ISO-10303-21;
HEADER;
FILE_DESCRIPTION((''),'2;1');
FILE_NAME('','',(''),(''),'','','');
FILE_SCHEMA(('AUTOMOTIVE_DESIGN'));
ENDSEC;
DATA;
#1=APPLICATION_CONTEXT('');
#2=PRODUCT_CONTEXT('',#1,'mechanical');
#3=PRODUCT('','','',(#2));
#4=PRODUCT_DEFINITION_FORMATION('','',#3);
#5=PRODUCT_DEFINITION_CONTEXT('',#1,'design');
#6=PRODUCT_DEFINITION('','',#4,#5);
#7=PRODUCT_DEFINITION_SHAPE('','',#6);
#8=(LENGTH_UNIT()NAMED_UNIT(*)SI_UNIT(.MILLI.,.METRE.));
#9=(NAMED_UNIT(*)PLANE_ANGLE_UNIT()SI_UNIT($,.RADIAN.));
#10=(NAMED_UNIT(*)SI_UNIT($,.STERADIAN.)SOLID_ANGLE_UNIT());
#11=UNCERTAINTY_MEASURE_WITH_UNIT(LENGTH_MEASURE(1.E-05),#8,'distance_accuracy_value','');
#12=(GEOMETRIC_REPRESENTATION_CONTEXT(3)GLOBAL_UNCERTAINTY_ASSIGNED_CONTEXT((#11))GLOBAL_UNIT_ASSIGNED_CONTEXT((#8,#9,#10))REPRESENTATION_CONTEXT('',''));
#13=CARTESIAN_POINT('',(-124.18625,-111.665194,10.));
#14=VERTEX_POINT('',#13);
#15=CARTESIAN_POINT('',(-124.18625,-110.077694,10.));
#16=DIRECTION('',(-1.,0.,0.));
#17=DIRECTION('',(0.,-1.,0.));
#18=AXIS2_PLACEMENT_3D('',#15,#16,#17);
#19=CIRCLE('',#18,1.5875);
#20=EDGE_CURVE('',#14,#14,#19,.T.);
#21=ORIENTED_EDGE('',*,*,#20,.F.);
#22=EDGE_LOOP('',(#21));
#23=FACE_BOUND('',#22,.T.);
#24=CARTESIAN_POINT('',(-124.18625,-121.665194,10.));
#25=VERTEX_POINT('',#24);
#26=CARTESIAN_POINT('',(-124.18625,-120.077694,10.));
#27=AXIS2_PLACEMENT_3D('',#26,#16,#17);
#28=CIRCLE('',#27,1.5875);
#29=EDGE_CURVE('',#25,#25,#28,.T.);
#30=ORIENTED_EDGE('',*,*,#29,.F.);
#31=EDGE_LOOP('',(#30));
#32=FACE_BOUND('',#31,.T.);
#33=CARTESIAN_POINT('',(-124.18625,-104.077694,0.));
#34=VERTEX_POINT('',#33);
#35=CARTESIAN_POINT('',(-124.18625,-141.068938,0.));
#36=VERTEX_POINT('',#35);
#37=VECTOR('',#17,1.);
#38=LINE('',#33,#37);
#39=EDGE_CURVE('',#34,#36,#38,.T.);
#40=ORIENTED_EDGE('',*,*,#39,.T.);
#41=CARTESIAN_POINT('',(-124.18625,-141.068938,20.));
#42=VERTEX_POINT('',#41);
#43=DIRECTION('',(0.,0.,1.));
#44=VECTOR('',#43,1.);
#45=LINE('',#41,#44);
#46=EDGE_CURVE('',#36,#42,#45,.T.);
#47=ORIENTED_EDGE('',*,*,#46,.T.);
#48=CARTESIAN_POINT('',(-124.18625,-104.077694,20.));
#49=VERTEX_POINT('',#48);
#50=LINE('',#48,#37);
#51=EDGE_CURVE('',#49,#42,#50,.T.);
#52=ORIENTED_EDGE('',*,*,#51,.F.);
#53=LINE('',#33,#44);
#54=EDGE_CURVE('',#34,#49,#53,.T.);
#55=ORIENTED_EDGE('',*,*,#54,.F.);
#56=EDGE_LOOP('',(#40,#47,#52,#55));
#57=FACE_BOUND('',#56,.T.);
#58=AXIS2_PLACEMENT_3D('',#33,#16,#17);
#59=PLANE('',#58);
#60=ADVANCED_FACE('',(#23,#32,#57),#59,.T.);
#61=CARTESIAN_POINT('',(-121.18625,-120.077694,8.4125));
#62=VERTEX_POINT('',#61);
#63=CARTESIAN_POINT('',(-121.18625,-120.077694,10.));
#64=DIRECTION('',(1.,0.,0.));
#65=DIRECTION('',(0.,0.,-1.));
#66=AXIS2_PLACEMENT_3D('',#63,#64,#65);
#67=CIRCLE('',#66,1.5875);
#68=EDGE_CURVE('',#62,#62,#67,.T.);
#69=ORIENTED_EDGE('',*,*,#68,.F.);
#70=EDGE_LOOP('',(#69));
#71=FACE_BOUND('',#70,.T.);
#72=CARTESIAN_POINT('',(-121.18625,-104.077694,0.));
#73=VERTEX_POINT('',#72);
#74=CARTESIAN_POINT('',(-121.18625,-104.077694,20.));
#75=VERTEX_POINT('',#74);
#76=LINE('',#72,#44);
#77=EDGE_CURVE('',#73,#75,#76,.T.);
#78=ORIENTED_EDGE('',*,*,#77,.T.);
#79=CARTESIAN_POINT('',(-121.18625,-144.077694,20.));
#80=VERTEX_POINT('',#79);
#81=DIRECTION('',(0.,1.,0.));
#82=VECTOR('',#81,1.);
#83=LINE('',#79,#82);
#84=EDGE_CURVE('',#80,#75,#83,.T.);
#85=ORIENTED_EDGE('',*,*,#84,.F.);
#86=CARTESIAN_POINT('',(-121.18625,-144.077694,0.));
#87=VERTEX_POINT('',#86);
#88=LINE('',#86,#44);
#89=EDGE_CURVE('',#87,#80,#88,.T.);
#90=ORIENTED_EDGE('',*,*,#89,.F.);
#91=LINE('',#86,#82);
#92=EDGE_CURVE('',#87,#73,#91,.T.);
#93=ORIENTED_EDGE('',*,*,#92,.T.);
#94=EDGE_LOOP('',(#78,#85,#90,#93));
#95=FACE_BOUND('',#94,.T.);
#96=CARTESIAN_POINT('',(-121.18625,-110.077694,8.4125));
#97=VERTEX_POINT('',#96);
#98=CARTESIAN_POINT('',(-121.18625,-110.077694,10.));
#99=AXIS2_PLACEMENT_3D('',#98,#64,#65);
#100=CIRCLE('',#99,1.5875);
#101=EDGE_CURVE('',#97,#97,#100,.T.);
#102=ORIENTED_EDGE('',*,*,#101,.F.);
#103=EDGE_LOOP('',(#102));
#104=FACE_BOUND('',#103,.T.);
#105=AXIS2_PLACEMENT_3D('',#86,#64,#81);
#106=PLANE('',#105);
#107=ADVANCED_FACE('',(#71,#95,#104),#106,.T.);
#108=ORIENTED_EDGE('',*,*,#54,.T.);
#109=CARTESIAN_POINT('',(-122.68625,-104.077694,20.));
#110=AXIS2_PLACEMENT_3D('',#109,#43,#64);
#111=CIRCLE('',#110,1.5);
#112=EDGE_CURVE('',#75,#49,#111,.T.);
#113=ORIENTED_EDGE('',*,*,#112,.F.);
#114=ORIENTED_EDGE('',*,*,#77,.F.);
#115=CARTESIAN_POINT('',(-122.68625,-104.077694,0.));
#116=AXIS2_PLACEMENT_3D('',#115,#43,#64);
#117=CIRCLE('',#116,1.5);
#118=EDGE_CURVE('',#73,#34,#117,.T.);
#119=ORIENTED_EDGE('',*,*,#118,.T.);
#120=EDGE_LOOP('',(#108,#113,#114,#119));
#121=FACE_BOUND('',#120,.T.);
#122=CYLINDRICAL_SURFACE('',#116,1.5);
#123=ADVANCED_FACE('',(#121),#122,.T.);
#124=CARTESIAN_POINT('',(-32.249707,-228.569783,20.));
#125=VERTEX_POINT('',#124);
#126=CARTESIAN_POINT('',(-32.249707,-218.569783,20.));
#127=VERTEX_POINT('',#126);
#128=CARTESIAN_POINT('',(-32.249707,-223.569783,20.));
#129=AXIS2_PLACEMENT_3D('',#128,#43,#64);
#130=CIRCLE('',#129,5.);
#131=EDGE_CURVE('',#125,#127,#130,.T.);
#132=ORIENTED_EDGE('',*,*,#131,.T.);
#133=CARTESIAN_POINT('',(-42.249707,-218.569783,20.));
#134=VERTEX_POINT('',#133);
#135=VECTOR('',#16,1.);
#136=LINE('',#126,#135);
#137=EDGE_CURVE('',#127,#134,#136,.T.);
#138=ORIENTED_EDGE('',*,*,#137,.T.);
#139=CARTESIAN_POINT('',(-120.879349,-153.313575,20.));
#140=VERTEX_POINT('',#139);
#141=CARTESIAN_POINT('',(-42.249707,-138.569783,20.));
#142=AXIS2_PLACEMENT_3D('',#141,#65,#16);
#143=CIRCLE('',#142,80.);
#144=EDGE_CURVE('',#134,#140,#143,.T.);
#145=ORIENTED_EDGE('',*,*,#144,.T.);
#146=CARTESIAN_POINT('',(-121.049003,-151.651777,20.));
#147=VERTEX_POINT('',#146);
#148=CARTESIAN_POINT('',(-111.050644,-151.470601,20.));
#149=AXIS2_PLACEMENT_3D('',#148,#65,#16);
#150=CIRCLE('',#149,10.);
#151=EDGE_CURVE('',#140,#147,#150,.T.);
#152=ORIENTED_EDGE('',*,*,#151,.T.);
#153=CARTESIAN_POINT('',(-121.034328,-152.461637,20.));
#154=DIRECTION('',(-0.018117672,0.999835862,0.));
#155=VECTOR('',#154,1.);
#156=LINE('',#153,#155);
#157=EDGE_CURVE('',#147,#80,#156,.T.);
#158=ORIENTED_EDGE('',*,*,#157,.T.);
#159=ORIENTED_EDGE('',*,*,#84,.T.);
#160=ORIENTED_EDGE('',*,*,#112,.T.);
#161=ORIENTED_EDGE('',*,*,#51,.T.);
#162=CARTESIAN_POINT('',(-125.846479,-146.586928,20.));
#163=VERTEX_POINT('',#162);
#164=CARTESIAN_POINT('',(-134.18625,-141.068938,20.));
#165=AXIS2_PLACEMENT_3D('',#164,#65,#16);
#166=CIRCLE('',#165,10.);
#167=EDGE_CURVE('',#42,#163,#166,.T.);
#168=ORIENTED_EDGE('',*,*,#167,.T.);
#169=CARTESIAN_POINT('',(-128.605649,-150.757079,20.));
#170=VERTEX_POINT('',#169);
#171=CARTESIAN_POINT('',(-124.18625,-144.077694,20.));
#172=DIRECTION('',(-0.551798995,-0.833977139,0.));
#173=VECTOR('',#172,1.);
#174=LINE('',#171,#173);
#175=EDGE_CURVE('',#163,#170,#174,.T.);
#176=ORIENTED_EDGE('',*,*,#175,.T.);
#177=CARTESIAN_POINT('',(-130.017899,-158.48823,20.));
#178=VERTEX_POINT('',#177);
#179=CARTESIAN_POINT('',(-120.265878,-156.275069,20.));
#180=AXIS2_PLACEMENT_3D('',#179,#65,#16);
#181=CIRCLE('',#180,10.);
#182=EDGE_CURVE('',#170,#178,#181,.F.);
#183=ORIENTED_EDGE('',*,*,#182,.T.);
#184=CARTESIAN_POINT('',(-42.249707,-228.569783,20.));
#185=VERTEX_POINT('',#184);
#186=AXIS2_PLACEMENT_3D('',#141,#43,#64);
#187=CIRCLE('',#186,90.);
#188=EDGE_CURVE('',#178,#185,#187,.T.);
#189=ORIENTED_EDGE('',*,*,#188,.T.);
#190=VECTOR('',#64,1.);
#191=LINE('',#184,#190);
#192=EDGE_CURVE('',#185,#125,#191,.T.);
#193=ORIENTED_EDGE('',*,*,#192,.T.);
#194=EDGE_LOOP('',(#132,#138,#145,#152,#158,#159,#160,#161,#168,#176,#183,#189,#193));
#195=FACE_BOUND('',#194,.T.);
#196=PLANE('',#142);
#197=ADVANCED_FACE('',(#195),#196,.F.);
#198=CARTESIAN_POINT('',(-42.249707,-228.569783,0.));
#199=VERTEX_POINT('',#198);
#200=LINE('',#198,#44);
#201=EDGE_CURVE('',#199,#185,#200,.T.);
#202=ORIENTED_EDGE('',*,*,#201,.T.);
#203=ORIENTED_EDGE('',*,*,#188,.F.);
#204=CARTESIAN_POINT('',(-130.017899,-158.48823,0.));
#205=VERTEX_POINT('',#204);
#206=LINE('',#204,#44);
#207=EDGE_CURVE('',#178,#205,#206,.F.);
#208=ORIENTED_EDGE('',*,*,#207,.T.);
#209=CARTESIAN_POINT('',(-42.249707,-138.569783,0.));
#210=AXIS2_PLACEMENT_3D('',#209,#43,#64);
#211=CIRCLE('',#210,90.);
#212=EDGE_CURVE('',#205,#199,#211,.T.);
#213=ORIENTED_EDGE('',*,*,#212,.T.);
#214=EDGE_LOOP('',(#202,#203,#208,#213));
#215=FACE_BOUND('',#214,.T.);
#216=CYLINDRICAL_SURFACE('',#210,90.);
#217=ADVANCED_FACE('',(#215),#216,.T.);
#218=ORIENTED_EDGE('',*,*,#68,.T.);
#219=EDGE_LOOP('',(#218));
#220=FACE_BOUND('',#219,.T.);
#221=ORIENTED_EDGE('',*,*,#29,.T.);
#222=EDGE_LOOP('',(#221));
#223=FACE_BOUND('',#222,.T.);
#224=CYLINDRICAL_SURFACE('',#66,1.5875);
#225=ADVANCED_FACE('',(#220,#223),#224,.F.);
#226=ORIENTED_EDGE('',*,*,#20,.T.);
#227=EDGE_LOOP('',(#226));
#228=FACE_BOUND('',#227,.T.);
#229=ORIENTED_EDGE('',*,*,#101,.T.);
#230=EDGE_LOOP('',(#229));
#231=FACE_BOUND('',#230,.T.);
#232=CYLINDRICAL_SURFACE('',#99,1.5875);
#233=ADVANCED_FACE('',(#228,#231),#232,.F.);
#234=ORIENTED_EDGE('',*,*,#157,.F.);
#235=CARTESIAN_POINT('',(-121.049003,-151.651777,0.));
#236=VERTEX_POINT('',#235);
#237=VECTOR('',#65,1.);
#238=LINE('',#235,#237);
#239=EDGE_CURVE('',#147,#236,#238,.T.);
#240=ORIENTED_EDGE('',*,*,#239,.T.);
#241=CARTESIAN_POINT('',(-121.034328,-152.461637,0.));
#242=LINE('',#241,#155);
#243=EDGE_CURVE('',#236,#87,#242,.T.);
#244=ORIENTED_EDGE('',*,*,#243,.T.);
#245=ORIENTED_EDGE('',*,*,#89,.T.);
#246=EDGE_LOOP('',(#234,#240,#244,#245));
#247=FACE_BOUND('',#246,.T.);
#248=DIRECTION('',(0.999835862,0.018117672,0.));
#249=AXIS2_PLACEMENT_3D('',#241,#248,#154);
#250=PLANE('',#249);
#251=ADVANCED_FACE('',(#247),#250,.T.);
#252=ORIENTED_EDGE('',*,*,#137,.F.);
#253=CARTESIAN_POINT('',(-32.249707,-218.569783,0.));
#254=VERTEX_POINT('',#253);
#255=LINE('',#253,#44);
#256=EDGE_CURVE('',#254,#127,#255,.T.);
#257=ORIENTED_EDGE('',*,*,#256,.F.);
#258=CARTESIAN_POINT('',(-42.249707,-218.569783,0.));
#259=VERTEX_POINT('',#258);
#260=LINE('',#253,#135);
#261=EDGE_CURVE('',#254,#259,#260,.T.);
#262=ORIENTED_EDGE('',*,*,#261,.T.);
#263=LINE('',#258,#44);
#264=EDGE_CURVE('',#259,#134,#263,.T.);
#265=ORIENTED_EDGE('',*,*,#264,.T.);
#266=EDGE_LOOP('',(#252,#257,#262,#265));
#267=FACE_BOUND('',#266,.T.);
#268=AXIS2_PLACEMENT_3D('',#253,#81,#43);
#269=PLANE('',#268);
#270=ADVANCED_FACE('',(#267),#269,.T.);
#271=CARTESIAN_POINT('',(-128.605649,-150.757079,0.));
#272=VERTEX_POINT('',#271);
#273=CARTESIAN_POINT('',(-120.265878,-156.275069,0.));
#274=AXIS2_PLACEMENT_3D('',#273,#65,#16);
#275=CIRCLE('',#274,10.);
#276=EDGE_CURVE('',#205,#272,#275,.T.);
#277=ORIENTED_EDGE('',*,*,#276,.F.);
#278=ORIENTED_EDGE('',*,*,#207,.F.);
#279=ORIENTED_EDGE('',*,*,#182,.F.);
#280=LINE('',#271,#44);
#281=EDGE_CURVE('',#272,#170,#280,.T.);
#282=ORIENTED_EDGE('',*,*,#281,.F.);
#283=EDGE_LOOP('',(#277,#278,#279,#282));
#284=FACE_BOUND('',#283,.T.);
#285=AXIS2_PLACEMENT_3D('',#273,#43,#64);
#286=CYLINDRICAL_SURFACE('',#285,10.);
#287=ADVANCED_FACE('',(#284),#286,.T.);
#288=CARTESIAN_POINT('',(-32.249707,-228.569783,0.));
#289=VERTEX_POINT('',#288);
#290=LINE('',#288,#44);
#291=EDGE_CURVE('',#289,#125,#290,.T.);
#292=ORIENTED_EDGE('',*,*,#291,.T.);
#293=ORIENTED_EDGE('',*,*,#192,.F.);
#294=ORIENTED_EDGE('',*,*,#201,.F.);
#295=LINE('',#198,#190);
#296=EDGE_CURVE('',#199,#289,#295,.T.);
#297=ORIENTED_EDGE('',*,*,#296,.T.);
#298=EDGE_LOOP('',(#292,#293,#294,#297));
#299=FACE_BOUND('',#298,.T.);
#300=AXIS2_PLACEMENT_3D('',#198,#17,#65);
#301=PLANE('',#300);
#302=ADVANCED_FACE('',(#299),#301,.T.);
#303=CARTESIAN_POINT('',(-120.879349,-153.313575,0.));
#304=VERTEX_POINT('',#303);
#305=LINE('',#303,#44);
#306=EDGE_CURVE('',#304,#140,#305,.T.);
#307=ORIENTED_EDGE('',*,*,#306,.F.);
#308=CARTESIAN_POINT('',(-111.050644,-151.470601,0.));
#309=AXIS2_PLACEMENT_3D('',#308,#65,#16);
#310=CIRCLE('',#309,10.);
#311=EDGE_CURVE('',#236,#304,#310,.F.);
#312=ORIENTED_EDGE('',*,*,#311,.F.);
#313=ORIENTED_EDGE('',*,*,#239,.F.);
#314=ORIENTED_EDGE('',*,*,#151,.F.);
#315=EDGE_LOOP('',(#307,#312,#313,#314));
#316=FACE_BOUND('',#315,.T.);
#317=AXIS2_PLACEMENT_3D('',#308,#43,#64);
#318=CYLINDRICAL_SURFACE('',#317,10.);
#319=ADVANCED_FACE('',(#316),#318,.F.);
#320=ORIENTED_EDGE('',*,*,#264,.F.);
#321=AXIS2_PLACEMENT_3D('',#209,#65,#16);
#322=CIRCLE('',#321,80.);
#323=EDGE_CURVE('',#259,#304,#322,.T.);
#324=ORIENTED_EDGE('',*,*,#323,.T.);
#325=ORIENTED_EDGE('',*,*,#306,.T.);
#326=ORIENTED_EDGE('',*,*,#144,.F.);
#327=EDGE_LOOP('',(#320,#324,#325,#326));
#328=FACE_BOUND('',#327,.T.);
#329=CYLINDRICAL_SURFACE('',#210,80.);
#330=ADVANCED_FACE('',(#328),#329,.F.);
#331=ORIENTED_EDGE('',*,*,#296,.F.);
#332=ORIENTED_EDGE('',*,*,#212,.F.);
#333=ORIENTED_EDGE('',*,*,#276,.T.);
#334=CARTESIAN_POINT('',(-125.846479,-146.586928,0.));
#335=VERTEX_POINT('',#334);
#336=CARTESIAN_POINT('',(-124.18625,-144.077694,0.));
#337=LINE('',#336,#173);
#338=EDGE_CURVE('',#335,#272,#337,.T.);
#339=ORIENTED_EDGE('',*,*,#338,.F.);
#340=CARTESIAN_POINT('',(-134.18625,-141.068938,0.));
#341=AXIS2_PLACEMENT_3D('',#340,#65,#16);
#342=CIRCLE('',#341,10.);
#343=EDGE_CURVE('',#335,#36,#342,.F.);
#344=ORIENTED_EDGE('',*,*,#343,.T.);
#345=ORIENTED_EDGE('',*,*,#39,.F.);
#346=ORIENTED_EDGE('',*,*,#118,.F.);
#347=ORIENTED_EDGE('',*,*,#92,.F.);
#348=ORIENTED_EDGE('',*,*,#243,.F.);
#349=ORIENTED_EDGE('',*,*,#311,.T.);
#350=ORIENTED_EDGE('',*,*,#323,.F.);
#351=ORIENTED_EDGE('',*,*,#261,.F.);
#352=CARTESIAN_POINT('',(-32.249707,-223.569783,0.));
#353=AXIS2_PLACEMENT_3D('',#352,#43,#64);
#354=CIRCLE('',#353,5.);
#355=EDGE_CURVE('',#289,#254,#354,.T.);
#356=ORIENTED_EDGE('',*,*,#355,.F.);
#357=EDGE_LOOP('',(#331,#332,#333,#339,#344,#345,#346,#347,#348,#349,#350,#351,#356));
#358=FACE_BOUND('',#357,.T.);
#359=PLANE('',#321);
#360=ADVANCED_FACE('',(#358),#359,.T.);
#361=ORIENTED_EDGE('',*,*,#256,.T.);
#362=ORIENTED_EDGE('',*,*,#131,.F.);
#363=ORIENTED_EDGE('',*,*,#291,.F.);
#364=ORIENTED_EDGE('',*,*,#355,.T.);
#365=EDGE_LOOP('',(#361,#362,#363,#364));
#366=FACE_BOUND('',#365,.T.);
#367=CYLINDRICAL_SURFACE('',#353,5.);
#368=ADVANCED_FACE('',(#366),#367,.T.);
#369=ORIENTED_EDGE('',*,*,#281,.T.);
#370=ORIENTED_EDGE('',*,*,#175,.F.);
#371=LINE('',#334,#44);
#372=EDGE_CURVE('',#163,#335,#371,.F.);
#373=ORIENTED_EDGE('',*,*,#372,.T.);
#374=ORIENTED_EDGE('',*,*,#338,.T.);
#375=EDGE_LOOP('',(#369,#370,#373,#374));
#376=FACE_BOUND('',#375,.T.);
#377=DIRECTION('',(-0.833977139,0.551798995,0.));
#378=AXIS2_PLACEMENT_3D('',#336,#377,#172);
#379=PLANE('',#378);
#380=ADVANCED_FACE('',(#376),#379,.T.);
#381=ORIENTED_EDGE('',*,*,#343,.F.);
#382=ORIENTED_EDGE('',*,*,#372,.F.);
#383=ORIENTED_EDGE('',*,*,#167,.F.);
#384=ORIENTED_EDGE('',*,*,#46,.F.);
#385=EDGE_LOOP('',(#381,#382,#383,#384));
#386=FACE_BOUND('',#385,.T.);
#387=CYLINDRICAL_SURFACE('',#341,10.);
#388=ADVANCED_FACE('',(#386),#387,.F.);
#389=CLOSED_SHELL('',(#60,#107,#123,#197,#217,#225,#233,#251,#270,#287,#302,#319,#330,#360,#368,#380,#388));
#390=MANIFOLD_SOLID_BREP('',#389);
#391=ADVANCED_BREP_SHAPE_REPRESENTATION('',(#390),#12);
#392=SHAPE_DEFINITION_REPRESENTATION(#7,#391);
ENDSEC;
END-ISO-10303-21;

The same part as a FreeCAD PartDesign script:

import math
import FreeCAD as App
import Part
import Sketcher
from FreeCAD import Vector


def edges_at(feature, points):
    """Names of the edges that pass closest to the given points."""
    edges = feature.Shape.Edges
    near = lambda p: min(range(len(edges)), key=lambda i: edges[i].distToShape(Part.Vertex(*p))[0])
    return sorted({f"Edge{near(p) + 1}" for p in points})

doc = App.newDocument("Part")
body = doc.addObject("PartDesign::Body", "Body")

sketch1 = doc.addObject("Sketcher::SketchObject", "Sketch")
body.addObject(sketch1)
sketch1.AttachmentSupport = (doc.XY_Plane, [""])
sketch1.MapMode = "FlatFace"
sketch1.AttachmentOffset = App.Placement(Vector(0, 0, 20), App.Rotation())
sketch1.addGeometry([
    Part.LineSegment(Vector(-121, -152.5, 0), Vector(-121.2, -144.1, 0)),
    Part.LineSegment(Vector(-121.2, -144.1, 0), Vector(-121.2, -104.1, 0)),
    Part.ArcOfCircle(Part.Circle(Vector(-122.7, -104.1, 0), Vector(0, 0, 1), 1.5), math.radians(0), math.radians(180)),
    Part.LineSegment(Vector(-124.2, -104.1, 0), Vector(-124.2, -144.1, 0)),
    Part.LineSegment(Vector(-124.2, -144.1, 0), Vector(-130.9, -154.2, 0)),
    Part.ArcOfCircle(Part.Circle(Vector(-42.2, -138.6, 0), Vector(0, 0, 1), 90), math.radians(-170), math.radians(-90)),
    Part.LineSegment(Vector(-42.2, -228.6, 0), Vector(-32.2, -228.6, 0)),
    Part.ArcOfCircle(Part.Circle(Vector(-32.2, -223.6, 0), Vector(0, 0, 1), 5), math.radians(-90), math.radians(90)),
    Part.LineSegment(Vector(-32.2, -218.6, 0), Vector(-42.2, -218.6, 0)),
    Part.ArcOfCircle(Part.Circle(Vector(-42.2, -138.6, 0), Vector(0, 0, 1), 80), math.radians(-170), math.radians(-90)),
], False)
sketch1.addConstraint([
    Sketcher.Constraint("Coincident", 0, 2, 1, 1),
    Sketcher.Constraint("Tangent", 1, 2, 2, 1),
    Sketcher.Constraint("Tangent", 2, 2, 3, 1),
    Sketcher.Constraint("Coincident", 3, 2, 4, 1),
    Sketcher.Constraint("Coincident", 4, 2, 5, 1),
    Sketcher.Constraint("Tangent", 5, 2, 6, 1),
    Sketcher.Constraint("Tangent", 6, 2, 7, 1),
    Sketcher.Constraint("Tangent", 7, 2, 8, 1),
    Sketcher.Constraint("Tangent", 8, 2, 9, 2),
    Sketcher.Constraint("Coincident", 9, 1, 0, 1),
    Sketcher.Constraint("Vertical", 1),
    Sketcher.Constraint("Vertical", 3),
    Sketcher.Constraint("Horizontal", 6),
    Sketcher.Constraint("Horizontal", 8),
    Sketcher.Constraint("Coincident", 9, 3, 5, 3),
    Sketcher.Constraint("Horizontal", 0, 2, 3, 2),
    Sketcher.Constraint("Radius", 5, 90.0),
    Sketcher.Constraint("Radius", 7, 5.0),
    Sketcher.Constraint("Radius", 2, 1.5),
    Sketcher.Constraint("DistanceX", 6, 1, 6, 2, 10.0),
    Sketcher.Constraint("DistanceY", 1, 1, 1, 2, 40.0),
    Sketcher.Constraint("Distance", 0, 8.385319),
    Sketcher.Constraint("DistanceX", 2, 3, -1, 1, 122.68625),
    Sketcher.Constraint("DistanceY", 4, 2, -1, 1, 154.198119),
    Sketcher.Constraint("DistanceY", 5, 3, 2, 3, 34.492089),
    Sketcher.Constraint("DistanceY", 4, 2, 9, 1, 1.736482),
    Sketcher.Constraint("Distance", 4, 12.135135),
])
pad1 = doc.addObject("PartDesign::Pad", "Pad")
body.addObject(pad1)
pad1.Profile = sketch1
pad1.Length = 20
pad1.Reversed = True

sketch2 = doc.addObject("Sketcher::SketchObject", "Sketch001")
body.addObject(sketch2)
sketch2.AttachmentSupport = (doc.YZ_Plane, [""])
sketch2.MapMode = "FlatFace"
sketch2.AttachmentOffset = App.Placement(Vector(0, 0, -121.18625), App.Rotation())
sketch2.addGeometry([
    Part.Circle(Vector(-120.1, 10, 0), Vector(0, 0, 1), 1.6),
    Part.Circle(Vector(-110.1, 10, 0), Vector(0, 0, 1), 1.6),
], False)
sketch2.addConstraint([
    Sketcher.Constraint("Equal", 0, 1),
    Sketcher.Constraint("Horizontal", 0, 3, 1, 3),
    Sketcher.Constraint("Diameter", 0, 3.175),
    Sketcher.Constraint("DistanceY", -1, 1, 0, 3, 10.0),
    Sketcher.Constraint("DistanceX", 0, 3, 1, 3, 10.0),
    Sketcher.Constraint("DistanceX", 0, 3, -1, 1, 120.077694),
])
doc.recompute()
hole = doc.addObject("PartDesign::Hole", "Hole")
body.addObject(hole)
hole.Profile = sketch2
hole.ThreadType = "None"
hole.Diameter = 3.175
hole.DepthType = "Dimension"
hole.Depth = 9.696155
hole.DrillPoint = "Flat"
doc.recompute()

fillet = doc.addObject("PartDesign::Fillet", "Fillet")
body.addObject(fillet)
fillet.Base = (hole, edges_at(hole, [(-130.882, -154.198, 10), (-124.186, -144.078, 10), (-121.034, -152.462, 10)]))
fillet.Radius = 10

doc.recompute()
